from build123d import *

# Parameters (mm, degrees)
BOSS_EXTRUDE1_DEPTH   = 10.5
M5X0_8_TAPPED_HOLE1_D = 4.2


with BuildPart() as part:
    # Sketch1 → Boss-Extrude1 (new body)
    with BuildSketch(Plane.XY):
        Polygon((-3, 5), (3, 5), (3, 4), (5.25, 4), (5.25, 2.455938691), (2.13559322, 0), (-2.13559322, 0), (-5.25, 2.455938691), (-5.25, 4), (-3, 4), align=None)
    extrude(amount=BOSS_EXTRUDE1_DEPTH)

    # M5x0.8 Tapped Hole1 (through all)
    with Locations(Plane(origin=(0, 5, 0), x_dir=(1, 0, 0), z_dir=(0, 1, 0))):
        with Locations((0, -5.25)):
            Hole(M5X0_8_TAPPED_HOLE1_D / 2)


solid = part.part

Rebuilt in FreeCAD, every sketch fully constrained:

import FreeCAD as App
import Part
import Sketcher
Q = App.Units.Quantity


def add_polygon(sketch, points):
    """Adds a closed chain of lines whose ends are joined by coincident constraints."""
    first, n = sketch.GeometryCount, len(points)
    for a, b in zip(points, points[1:] + points[:1]):
        sketch.addGeometry(Part.LineSegment(App.Vector(*a, 0), App.Vector(*b, 0)), False)
    for i in range(n):
        sketch.addConstraint(Sketcher.Constraint("Coincident", first + i, 2, first + (i + 1) % n, 1))

doc = App.newDocument("Part")
params = doc.addObject("Spreadsheet::Sheet", "Params")
for row, (alias, value) in enumerate([
    ("sketch1_width", "6 mm"),
    ("sketch1_height", "1 mm"),
    ("sketch1_width2", "2.25 mm"),
    ("pad1_length", "10.5 mm"),
    ("sketch2_diameter", "4.2 mm"),
    ("hole_diameter", "4.2 mm"),
], start=1):
    params.set(f"A{row}", alias)
    params.set(f"B{row}", "=" + value)
    params.setAlias(f"B{row}", alias)

body = doc.addObject("PartDesign::Body", "Body")

# Sketch on XY plane
sketch1 = body.newObject("Sketcher::SketchObject", "Sketch")
sketch1.AttachmentSupport = (doc.getObject("XY_Plane"), [""])
sketch1.MapMode = "FlatFace"
add_polygon(sketch1, [(3, 5), (-3, 5), (-3, 4), (-5.2, 4), (-5.2, 2.5), (-2.1, 0), (2.1, 0), (5.2, 2.5), (5.2, 4), (3, 4)])  # lines 0-9
sketch1.addConstraint(Sketcher.Constraint("Horizontal", 0))
sketch1.addConstraint(Sketcher.Constraint("Vertical", 1))
sketch1.addConstraint(Sketcher.Constraint("Horizontal", 2))
sketch1.addConstraint(Sketcher.Constraint("Vertical", 3))
sketch1.addConstraint(Sketcher.Constraint("Horizontal", 5))
sketch1.addConstraint(Sketcher.Constraint("Vertical", 7))
sketch1.addConstraint(Sketcher.Constraint("Horizontal", 8))
sketch1.addConstraint(Sketcher.Constraint("Vertical", 9))
sketch1.addConstraint(Sketcher.Constraint("Symmetric", 4, 2, 5, 2, -1, 1))
sketch1.addConstraint(Sketcher.Constraint("Symmetric", 3, 2, 6, 2, -2))
sketch1.addConstraint(Sketcher.Constraint("Symmetric", 1, 2, 8, 2, -2))
sketch1.addConstraint(Sketcher.Constraint("DistanceX", 0, 2, 0, 1, Q("6 mm")))
sketch1.addConstraint(Sketcher.Constraint("DistanceY", 1, 2, 1, 1, Q("1 mm")))
sketch1.addConstraint(Sketcher.Constraint("DistanceY", -1, 1, 0, 2, Q("5 mm")))
sketch1.addConstraint(Sketcher.Constraint("DistanceX", 2, 2, 2, 1, Q("2.25 mm")))
sketch1.addConstraint(Sketcher.Constraint("DistanceY", 3, 2, 3, 1, Q("1.544061 mm")))
sketch1.addConstraint(Sketcher.Constraint("DistanceX", 5, 1, 5, 2, Q("4.271186 mm")))
sketch1.setExpression("Constraints[21]", "Params.sketch1_width")
sketch1.setExpression("Constraints[22]", "Params.sketch1_height")
sketch1.setExpression("Constraints[24]", "Params.sketch1_width2")
pad1 = body.newObject("PartDesign::Pad", "Pad")
pad1.Profile = sketch1
pad1.setExpression("Length", "Params.pad1_length")

# Sketch on XZ plane
sketch2 = body.newObject("Sketcher::SketchObject", "Sketch001")
sketch2.AttachmentSupport = (doc.getObject("XZ_Plane"), [""])
sketch2.MapMode = "FlatFace"
sketch2.AttachmentOffset = App.Placement(App.Vector(0, 0, -5), App.Rotation())
sketch2.addGeometry(Part.Circle(App.Vector(0, 5.2, 0), App.Vector(0, 0, 1), 2.1), False)
sketch2.addConstraint(Sketcher.Constraint("PointOnObject", 0, 3, -2))
sketch2.addConstraint(Sketcher.Constraint("Diameter", 0, Q("4.2 mm")))
sketch2.addConstraint(Sketcher.Constraint("DistanceY", -1, 1, 0, 3, Q("5.25 mm")))
sketch2.setExpression("Constraints[1]", "Params.sketch2_diameter")
doc.recompute()
hole = body.newObject("PartDesign::Hole", "Hole")
hole.Profile = sketch2
hole.ThreadType = "None"
hole.setExpression("Diameter", "Params.hole_diameter")
hole.DepthType = "ThroughAll"
hole.Reversed = True

doc.recompute()
